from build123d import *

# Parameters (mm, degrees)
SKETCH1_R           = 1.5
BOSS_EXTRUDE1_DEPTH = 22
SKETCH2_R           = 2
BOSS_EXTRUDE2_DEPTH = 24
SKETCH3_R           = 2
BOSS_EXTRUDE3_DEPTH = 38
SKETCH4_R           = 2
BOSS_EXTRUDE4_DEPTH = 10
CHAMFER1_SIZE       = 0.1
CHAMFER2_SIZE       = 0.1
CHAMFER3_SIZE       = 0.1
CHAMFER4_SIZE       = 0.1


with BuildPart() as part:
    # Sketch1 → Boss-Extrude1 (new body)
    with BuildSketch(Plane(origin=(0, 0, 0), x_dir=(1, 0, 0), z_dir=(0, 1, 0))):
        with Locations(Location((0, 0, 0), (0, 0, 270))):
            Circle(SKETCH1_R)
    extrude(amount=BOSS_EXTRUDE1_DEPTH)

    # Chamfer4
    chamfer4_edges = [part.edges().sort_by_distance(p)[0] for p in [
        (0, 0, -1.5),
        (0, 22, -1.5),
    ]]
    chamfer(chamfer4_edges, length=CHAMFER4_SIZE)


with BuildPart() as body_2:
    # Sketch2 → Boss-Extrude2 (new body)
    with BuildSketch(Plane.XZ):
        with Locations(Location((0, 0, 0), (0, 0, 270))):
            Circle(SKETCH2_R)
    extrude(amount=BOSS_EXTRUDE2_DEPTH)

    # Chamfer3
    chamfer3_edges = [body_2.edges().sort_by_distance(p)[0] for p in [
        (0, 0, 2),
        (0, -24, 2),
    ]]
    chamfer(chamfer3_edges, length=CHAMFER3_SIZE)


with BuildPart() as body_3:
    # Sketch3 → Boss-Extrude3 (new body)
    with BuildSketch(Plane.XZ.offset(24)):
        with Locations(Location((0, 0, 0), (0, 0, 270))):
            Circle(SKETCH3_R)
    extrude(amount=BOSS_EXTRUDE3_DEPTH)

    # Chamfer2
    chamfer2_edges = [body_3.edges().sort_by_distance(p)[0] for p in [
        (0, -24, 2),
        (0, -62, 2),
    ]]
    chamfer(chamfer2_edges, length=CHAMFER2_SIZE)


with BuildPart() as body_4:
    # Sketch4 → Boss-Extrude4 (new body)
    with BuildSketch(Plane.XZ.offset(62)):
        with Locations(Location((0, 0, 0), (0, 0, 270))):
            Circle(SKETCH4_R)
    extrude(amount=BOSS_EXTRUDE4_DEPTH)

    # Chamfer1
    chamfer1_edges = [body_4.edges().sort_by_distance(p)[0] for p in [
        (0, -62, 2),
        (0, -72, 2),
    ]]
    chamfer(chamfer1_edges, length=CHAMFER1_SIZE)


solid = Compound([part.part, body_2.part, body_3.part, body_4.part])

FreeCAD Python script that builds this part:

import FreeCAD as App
import Part
import Sketcher

V = App.Vector
Q = App.Units.Quantity


def edges_at(feature, points):
    """Names of the edges that pass closest to the given points."""
    edges = feature.Shape.Edges
    near = lambda p: min(range(len(edges)), key=lambda i: edges[i].distToShape(Part.Vertex(*p))[0])
    return sorted({f"Edge{near(p) + 1}" for p in points})

doc = App.newDocument("Part")
body = doc.addObject("PartDesign::Body", "Body")

sketch1 = body.newObject("Sketcher::SketchObject", "Sketch")
sketch1.AttachmentSupport = (doc.getObject("XZ_Plane"), [""])
sketch1.MapMode = "FlatFace"
sketch1.addGeometry(Part.Circle(V(0, 0, 0), V(0, 0, 1), 1.5), False)
sketch1.addConstraint(Sketcher.Constraint("Coincident", 0, 3, -1, 1))
sketch1.addConstraint(Sketcher.Constraint("Diameter", 0, Q("3 mm")))
pad1 = body.newObject("PartDesign::Pad", "Pad")
pad1.Profile = sketch1
pad1.Length = 22
pad1.Reversed = True
doc.recompute()

chamfer = body.newObject("PartDesign::Chamfer", "Chamfer")
chamfer.Base = (pad1, edges_at(pad1, [(0, 0, -1.5), (0, 22, -1.5)]))
chamfer.Size = 0.1
body2 = doc.addObject("PartDesign::Body", "Body001")

sketch2 = body2.newObject("Sketcher::SketchObject", "Sketch001")
sketch2.AttachmentSupport = (doc.getObject("XZ_Plane001"), [""])
sketch2.MapMode = "FlatFace"
sketch2.addGeometry(Part.Circle(V(0, 0, 0), V(0, 0, 1), 2), False)
sketch2.addConstraint(Sketcher.Constraint("Coincident", 0, 3, -1, 1))
sketch2.addConstraint(Sketcher.Constraint("Diameter", 0, Q("4 mm")))
pad2 = body2.newObject("PartDesign::Pad", "Pad001")
pad2.Profile = sketch2
pad2.Length = 24
doc.recompute()

chamfer2 = body2.newObject("PartDesign::Chamfer", "Chamfer001")
chamfer2.Base = (pad2, edges_at(pad2, [(0, 0, 2), (0, -24, 2)]))
chamfer2.Size = 0.1
body3 = doc.addObject("PartDesign::Body", "Body002")

sketch3 = body3.newObject("Sketcher::SketchObject", "Sketch002")
sketch3.AttachmentSupport = (doc.getObject("XZ_Plane002"), [""])
sketch3.MapMode = "FlatFace"
sketch3.AttachmentOffset = App.Placement(V(0, 0, 24), App.Rotation())
sketch3.addGeometry(Part.Circle(V(0, 0, 0), V(0, 0, 1), 2), False)
sketch3.addConstraint(Sketcher.Constraint("Coincident", 0, 3, -1, 1))
sketch3.addConstraint(Sketcher.Constraint("Diameter", 0, Q("4 mm")))
pad3 = body3.newObject("PartDesign::Pad", "Pad002")
pad3.Profile = sketch3
pad3.Length = 38
doc.recompute()

chamfer3 = body3.newObject("PartDesign::Chamfer", "Chamfer002")
chamfer3.Base = (pad3, edges_at(pad3, [(0, -24, 2), (0, -62, 2)]))
chamfer3.Size = 0.1
body4 = doc.addObject("PartDesign::Body", "Body003")

sketch4 = body4.newObject("Sketcher::SketchObject", "Sketch003")
sketch4.AttachmentSupport = (doc.getObject("XZ_Plane003"), [""])
sketch4.MapMode = "FlatFace"
sketch4.AttachmentOffset = App.Placement(V(0, 0, 62), App.Rotation())
sketch4.addGeometry(Part.Circle(V(0, 0, 0), V(0, 0, 1), 2), False)
sketch4.addConstraint(Sketcher.Constraint("Coincident", 0, 3, -1, 1))
sketch4.addConstraint(Sketcher.Constraint("Diameter", 0, Q("4 mm")))
pad4 = body4.newObject("PartDesign::Pad", "Pad003")
pad4.Profile = sketch4
pad4.Length = 10
doc.recompute()

chamfer4 = body4.newObject("PartDesign::Chamfer", "Chamfer003")
chamfer4.Base = (pad4, edges_at(pad4, [(0, -62, 2), (0, -72, 2)]))
chamfer4.Size = 0.1

doc.recompute()
